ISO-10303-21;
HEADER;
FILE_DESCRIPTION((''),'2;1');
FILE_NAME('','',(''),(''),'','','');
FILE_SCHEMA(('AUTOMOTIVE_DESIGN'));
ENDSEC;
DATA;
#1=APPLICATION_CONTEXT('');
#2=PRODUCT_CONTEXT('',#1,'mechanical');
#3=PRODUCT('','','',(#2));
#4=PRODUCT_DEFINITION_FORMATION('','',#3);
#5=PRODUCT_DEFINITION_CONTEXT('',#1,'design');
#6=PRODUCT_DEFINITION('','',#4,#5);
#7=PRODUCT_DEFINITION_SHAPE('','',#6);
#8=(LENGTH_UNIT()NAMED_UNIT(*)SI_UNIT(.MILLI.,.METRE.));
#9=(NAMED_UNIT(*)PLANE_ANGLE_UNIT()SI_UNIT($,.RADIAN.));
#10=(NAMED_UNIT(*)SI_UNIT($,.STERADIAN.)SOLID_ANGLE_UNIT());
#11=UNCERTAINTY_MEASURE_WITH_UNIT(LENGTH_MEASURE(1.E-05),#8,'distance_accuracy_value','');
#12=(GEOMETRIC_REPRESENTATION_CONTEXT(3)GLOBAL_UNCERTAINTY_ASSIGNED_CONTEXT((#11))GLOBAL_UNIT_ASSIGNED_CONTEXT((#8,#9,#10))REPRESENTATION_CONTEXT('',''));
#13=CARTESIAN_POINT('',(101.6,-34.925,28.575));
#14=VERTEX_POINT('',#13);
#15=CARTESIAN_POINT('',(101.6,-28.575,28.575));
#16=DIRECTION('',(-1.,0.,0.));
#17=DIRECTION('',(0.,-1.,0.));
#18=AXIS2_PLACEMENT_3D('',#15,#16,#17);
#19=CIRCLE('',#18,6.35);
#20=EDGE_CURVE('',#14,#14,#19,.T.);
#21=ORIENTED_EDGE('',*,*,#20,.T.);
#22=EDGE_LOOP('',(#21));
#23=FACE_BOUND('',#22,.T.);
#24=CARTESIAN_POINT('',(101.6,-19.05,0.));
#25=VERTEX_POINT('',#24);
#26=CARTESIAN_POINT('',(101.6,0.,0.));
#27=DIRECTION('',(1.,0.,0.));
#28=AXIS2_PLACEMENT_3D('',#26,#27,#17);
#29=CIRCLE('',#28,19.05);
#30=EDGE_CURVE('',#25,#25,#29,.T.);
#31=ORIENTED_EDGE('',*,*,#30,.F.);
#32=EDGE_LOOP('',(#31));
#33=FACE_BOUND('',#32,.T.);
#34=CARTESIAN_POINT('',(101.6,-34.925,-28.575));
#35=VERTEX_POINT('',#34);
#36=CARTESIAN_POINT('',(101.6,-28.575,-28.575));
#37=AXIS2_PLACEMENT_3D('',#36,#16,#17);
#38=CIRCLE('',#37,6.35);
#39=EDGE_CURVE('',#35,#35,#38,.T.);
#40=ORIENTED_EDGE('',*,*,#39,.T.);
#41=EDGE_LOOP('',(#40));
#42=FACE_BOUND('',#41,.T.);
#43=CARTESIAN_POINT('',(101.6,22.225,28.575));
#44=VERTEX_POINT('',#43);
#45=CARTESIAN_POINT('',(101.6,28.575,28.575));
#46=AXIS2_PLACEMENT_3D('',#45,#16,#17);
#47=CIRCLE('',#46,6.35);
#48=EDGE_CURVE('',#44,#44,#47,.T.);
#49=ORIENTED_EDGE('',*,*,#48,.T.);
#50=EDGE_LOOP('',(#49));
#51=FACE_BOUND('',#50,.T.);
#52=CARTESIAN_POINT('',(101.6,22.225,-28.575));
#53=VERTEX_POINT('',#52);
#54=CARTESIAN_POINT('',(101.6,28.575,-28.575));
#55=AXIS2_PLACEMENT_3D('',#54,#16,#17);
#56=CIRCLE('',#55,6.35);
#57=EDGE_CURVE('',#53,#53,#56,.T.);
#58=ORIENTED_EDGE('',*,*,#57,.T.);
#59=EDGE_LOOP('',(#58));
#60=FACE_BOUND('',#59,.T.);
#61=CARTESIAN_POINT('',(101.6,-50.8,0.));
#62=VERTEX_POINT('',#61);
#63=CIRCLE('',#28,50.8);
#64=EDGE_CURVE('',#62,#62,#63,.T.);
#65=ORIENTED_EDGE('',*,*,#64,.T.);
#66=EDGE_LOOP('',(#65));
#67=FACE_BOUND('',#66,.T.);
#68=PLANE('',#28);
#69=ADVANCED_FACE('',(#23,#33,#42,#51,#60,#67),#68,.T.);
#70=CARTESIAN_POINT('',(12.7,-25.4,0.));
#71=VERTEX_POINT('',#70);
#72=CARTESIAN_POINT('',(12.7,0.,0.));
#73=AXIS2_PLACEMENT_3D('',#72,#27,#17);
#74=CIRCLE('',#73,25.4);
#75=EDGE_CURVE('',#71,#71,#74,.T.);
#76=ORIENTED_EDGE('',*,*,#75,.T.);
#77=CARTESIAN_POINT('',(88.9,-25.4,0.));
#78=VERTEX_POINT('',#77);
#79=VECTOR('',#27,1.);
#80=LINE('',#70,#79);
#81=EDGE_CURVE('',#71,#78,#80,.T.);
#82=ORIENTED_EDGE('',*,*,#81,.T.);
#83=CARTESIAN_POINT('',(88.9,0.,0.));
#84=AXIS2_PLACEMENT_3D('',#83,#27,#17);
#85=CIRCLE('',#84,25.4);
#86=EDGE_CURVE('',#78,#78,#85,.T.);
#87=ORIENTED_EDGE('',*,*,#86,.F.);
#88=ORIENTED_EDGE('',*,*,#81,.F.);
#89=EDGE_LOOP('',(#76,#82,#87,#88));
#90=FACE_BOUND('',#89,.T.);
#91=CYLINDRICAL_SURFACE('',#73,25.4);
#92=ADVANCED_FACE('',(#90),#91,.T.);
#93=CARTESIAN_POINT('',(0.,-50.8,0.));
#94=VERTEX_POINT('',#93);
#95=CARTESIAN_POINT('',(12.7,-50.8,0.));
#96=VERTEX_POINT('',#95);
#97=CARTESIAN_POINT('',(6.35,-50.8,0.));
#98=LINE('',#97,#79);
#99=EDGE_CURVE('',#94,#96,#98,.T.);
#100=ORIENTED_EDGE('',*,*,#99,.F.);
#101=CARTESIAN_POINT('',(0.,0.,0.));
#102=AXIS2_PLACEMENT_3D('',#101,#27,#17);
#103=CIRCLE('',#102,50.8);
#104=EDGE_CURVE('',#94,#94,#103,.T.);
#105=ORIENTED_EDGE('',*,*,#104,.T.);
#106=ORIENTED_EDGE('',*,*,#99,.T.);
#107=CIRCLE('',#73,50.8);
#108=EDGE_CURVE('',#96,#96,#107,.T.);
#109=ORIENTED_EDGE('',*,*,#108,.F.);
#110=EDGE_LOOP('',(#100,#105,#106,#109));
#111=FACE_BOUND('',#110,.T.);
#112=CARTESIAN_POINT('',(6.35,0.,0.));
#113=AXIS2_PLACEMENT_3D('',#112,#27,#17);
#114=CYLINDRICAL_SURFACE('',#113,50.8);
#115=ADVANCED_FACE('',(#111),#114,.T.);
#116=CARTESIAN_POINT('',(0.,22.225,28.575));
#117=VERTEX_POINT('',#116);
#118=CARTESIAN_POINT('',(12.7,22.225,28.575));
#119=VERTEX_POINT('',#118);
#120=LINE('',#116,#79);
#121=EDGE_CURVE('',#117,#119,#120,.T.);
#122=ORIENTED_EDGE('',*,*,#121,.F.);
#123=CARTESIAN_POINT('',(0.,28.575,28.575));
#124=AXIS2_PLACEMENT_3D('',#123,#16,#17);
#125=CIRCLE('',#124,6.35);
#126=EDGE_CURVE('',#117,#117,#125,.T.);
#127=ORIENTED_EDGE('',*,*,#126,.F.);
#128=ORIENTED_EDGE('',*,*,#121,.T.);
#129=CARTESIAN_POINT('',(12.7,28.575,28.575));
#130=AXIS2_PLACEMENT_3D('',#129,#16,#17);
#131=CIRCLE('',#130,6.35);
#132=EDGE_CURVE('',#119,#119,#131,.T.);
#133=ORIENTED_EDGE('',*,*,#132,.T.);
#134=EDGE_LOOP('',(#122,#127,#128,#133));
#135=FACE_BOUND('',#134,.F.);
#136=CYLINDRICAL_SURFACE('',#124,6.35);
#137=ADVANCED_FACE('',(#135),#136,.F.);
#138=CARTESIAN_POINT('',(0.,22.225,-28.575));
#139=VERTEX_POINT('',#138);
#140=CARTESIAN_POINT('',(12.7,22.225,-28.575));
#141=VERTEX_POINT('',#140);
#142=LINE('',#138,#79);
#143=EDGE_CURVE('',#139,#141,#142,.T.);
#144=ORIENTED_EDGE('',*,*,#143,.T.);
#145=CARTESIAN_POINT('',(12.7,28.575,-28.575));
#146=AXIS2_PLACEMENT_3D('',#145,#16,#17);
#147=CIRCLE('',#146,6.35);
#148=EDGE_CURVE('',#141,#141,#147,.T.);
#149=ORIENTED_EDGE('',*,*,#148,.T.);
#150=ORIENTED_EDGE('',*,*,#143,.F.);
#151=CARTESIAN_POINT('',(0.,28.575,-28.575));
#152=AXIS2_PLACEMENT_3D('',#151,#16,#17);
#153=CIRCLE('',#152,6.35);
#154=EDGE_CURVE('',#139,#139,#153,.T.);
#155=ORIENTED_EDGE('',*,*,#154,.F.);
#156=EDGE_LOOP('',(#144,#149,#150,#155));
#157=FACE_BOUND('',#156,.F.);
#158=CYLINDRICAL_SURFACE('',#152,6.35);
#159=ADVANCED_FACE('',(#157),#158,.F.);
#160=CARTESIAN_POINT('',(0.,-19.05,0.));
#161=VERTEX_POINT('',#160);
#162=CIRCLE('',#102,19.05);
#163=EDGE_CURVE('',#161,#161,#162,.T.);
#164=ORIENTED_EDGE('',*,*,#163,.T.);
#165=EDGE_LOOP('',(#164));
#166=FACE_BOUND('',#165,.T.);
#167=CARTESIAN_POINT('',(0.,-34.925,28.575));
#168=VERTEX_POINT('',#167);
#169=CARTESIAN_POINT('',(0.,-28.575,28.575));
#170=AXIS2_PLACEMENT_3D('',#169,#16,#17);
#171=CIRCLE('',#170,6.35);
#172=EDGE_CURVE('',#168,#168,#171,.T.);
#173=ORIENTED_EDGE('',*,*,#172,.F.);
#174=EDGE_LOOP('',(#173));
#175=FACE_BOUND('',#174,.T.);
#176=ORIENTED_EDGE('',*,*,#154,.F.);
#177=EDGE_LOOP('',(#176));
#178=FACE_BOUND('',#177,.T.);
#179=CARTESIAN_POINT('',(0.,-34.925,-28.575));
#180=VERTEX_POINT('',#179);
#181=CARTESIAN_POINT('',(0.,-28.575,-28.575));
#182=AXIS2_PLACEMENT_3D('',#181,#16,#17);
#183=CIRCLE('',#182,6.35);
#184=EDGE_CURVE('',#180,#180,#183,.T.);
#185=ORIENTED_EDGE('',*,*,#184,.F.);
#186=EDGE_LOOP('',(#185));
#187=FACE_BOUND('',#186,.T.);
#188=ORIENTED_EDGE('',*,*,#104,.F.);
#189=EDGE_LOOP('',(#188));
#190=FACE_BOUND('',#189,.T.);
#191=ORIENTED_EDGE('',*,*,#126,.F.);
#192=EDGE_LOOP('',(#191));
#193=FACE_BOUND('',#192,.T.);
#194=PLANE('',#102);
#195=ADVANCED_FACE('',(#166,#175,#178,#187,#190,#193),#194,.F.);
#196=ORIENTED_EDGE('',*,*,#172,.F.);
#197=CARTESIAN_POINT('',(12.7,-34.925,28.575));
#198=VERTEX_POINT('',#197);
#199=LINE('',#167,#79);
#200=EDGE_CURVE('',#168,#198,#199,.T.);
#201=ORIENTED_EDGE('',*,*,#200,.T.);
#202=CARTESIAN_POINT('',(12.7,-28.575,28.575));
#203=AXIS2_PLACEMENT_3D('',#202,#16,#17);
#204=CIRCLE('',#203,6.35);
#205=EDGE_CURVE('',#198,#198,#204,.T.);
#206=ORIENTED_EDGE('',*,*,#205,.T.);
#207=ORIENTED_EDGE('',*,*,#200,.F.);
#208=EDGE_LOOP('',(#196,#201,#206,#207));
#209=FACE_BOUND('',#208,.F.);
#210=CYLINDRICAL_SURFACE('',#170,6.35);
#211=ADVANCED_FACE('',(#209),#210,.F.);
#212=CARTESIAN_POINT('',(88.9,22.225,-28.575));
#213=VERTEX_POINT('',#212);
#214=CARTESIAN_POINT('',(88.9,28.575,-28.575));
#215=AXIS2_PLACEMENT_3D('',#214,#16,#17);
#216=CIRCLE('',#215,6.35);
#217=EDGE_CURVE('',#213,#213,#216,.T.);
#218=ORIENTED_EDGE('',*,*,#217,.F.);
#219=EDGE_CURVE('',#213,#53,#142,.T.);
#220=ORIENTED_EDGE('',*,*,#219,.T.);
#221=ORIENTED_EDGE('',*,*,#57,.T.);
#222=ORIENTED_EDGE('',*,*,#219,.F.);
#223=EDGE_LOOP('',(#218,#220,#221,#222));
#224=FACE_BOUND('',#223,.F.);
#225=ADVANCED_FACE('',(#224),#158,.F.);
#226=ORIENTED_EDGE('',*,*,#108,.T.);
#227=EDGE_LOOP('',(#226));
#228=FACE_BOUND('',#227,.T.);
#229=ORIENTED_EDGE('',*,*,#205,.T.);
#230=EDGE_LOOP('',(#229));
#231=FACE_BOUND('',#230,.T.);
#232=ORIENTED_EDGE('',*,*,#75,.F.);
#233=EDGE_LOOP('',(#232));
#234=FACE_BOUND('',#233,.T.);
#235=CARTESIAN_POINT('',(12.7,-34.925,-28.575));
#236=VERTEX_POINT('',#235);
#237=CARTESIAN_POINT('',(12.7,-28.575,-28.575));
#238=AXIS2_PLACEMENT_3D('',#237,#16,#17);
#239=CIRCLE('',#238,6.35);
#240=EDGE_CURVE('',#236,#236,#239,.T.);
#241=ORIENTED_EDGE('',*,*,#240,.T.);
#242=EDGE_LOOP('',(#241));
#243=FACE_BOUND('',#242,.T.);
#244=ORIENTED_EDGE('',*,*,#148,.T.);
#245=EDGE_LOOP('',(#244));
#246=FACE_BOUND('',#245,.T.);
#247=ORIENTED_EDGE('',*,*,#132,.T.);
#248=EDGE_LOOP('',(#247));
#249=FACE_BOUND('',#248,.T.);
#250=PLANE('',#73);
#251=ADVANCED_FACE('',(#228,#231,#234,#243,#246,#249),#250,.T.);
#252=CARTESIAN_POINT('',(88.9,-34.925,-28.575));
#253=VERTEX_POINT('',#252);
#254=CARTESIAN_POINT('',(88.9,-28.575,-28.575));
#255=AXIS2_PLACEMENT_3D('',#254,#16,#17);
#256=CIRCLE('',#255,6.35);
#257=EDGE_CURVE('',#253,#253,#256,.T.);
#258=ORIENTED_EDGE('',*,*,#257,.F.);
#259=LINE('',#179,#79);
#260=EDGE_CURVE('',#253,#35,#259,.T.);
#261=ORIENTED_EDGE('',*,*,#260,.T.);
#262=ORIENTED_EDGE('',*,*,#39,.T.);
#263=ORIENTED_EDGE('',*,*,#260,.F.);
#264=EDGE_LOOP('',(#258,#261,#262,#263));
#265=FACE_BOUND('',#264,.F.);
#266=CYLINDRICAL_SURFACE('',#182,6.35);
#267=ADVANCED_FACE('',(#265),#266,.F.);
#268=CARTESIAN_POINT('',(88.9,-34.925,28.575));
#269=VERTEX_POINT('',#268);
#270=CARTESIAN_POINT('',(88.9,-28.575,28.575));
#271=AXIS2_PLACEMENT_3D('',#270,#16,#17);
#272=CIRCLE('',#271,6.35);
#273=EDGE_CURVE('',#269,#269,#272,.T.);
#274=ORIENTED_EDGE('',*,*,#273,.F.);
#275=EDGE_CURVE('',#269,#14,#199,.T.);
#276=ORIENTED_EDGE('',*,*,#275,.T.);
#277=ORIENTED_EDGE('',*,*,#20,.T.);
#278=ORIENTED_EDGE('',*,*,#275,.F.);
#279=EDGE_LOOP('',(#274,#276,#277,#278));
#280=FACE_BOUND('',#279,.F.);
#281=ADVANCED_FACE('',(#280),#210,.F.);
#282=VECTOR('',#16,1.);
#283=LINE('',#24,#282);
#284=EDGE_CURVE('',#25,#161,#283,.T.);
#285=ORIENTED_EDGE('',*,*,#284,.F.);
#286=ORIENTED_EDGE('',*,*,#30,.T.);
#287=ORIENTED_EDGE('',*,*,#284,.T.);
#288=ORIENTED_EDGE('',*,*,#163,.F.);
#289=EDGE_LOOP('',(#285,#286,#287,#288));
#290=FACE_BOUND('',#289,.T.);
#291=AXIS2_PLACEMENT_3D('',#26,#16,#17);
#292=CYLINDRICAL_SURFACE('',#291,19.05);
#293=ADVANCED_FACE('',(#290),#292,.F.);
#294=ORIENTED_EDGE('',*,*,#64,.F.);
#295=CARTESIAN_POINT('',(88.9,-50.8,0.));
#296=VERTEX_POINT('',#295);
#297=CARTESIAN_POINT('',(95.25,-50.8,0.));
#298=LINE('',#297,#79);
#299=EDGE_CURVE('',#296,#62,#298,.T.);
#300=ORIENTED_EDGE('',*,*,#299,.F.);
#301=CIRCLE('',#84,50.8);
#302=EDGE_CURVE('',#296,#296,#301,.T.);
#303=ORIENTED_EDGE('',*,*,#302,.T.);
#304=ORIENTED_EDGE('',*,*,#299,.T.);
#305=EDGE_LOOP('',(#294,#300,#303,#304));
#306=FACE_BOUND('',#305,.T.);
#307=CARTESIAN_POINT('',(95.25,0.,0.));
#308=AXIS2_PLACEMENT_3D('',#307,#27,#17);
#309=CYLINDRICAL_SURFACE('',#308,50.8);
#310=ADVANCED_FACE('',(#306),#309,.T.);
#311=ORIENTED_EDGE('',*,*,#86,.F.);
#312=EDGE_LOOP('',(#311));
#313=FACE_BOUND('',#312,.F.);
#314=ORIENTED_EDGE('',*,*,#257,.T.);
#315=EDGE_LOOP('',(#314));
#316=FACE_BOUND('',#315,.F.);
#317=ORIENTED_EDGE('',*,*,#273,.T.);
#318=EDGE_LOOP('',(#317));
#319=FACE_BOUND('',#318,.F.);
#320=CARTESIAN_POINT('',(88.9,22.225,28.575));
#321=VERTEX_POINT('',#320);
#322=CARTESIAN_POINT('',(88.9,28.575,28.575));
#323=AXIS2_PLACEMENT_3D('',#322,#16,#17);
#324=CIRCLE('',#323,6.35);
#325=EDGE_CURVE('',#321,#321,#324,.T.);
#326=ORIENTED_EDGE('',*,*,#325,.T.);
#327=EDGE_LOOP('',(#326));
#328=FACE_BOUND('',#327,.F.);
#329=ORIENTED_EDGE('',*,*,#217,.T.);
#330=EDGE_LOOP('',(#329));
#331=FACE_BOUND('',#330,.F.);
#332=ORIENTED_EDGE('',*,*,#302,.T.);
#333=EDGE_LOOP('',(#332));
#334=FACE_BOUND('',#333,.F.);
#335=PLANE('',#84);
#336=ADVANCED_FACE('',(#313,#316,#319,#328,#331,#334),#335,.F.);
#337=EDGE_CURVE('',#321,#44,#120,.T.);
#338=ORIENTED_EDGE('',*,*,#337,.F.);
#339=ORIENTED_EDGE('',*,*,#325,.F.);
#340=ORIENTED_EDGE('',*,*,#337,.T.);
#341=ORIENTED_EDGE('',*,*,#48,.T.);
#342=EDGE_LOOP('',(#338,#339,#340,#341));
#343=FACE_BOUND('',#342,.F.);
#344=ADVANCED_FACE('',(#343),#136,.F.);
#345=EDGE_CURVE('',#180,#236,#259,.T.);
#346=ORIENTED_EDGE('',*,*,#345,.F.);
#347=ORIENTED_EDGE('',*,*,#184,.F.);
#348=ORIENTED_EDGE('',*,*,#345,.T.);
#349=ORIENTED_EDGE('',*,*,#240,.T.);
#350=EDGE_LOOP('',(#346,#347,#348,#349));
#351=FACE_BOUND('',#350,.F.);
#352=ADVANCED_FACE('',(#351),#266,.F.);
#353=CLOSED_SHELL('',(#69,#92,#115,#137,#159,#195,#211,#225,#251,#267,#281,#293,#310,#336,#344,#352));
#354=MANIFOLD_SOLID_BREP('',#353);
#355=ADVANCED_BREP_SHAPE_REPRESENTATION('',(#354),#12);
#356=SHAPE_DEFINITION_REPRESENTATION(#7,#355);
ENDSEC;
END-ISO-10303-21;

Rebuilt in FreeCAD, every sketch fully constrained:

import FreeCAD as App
import Part
import Sketcher
from FreeCAD import Vector
Q = App.Units.Quantity

doc = App.newDocument("Part")
body = doc.addObject("PartDesign::Body", "Body")

sketch1 = body.newObject("Sketcher::SketchObject", "Sketch")
sketch1.AttachmentSupport = (doc.getObject("XY_Plane"), [""])
sketch1.MapMode = "FlatFace"
sketch1.addGeometry([
    Part.LineSegment(Vector(0, -19, 0), Vector(0, -51, 0)),
    Part.LineSegment(Vector(0, -51, 0), Vector(13, -51, 0)),
    Part.LineSegment(Vector(13, -51, 0), Vector(13, -25, 0)),
    Part.LineSegment(Vector(13, -25, 0), Vector(89, -25, 0)),
    Part.LineSegment(Vector(89, -25, 0), Vector(89, -51, 0)),
    Part.LineSegment(Vector(89, -51, 0), Vector(102, -51, 0)),
    Part.LineSegment(Vector(102, -51, 0), Vector(102, -19, 0)),
    Part.LineSegment(Vector(102, -19, 0), Vector(0, -19, 0)),
], False)
sketch1.addConstraint([
    Sketcher.Constraint("Coincident", 0, 2, 1, 1),
    Sketcher.Constraint("Coincident", 1, 2, 2, 1),
    Sketcher.Constraint("Coincident", 2, 2, 3, 1),
    Sketcher.Constraint("Coincident", 3, 2, 4, 1),
    Sketcher.Constraint("Coincident", 4, 2, 5, 1),
    Sketcher.Constraint("Coincident", 5, 2, 6, 1),
    Sketcher.Constraint("Coincident", 6, 2, 7, 1),
    Sketcher.Constraint("Coincident", 7, 2, 0, 1),
    Sketcher.Constraint("Vertical", 0),
    Sketcher.Constraint("Horizontal", 1),
    Sketcher.Constraint("Vertical", 2),
    Sketcher.Constraint("Horizontal", 3),
    Sketcher.Constraint("Vertical", 4),
    Sketcher.Constraint("Horizontal", 5),
    Sketcher.Constraint("Vertical", 6),
    Sketcher.Constraint("Horizontal", 7),
    Sketcher.Constraint("PointOnObject", 0, 2, -2),
    Sketcher.Constraint("Horizontal", 1, 2, 4, 2),
    Sketcher.Constraint("Equal", 1, 5),
    Sketcher.Constraint("DistanceX", 3, 1, 3, 2, Q("3 in")),
    Sketcher.Constraint("DistanceX", 7, 2, 7, 1, Q("4 in")),
    Sketcher.Constraint("DistanceY", 2, 1, 2, 2, Q("1 in")),
    Sketcher.Constraint("DistanceY", 0, 2, -1, 1, Q("2 in")),
    Sketcher.Constraint("DistanceY", 0, 2, 0, 1, Q("1.25 in")),
])
revolution = body.newObject("PartDesign::Revolution", "Revolution")
revolution.Profile = sketch1
revolution.ReferenceAxis = (sketch1, ["H_Axis"])
revolution.Angle = 360

sketch2 = body.newObject("Sketcher::SketchObject", "Sketch001")
sketch2.AttachmentSupport = (doc.getObject("YZ_Plane"), [""])
sketch2.MapMode = "FlatFace"
sketch2.addGeometry([
    Part.Circle(Vector(29, 29, 0), Vector(0, 0, 1), 6),
    Part.Circle(Vector(-29, 29, 0), Vector(0, 0, 1), 6),
    Part.Circle(Vector(29, -29, 0), Vector(0, 0, 1), 6),
    Part.Circle(Vector(-29, -29, 0), Vector(0, 0, 1), 6),
], False)
sketch2.addConstraint([
    Sketcher.Constraint("Equal", 0, 1),
    Sketcher.Constraint("Equal", 1, 2),
    Sketcher.Constraint("Equal", 2, 3),
    Sketcher.Constraint("Symmetric", 1, 3, 2, 3, -1, 1),
    Sketcher.Constraint("Symmetric", 0, 3, 3, 3, -1, 1),
    Sketcher.Constraint("Symmetric", 0, 3, 1, 3, -2),
    Sketcher.Constraint("Diameter", 0, Q("0.5 in")),
    Sketcher.Constraint("DistanceX", 1, 3, 0, 3, Q("2.25 in")),
    Sketcher.Constraint("DistanceY", 2, 3, 0, 3, Q("2.25 in")),
])
pocket1 = body.newObject("PartDesign::Pocket", "Pocket")
pocket1.Profile = sketch2
pocket1.Type = "ThroughAll"
pocket1.Reversed = True

doc.recompute()
